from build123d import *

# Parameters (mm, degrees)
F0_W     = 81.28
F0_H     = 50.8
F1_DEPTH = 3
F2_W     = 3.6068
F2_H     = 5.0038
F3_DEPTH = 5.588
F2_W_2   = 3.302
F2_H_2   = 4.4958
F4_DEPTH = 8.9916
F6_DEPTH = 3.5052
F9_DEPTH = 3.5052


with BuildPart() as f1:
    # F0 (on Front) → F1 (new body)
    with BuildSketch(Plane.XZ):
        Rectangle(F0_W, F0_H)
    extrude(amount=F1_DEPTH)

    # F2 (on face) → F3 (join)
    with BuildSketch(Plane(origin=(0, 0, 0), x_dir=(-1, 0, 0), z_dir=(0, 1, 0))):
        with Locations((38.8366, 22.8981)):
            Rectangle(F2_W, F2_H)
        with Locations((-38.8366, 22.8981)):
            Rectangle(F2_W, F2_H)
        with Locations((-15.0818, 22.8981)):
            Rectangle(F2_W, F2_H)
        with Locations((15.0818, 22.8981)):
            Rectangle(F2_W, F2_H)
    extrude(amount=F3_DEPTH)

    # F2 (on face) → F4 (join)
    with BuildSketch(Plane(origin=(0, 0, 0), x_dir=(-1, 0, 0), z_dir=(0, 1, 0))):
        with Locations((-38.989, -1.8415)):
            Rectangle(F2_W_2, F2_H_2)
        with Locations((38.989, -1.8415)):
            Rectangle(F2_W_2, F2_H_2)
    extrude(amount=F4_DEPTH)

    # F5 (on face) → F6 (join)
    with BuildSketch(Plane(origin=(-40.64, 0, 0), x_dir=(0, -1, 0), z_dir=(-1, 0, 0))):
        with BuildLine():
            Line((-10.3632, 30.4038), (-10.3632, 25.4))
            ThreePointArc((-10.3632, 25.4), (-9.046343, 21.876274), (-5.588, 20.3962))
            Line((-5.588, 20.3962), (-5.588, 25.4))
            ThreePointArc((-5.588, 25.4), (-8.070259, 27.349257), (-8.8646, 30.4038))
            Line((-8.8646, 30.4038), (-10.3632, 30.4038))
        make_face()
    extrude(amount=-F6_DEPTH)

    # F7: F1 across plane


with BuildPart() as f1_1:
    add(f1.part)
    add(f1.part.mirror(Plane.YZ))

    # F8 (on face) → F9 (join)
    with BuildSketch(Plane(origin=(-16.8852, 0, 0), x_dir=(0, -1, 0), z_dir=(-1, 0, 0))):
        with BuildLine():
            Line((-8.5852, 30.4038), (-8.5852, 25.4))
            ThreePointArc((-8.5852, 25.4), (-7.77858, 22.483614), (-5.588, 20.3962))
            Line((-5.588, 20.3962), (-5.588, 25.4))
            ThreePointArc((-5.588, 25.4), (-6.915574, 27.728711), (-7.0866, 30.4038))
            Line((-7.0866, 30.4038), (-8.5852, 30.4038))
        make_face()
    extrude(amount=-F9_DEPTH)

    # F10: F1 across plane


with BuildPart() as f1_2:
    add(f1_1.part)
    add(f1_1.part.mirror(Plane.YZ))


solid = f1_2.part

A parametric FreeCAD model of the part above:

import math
import FreeCAD as App
import Part
import Sketcher
from FreeCAD import Vector
Q = App.Units.Quantity

doc = App.newDocument("Part")
body = doc.addObject("PartDesign::Body", "Body")

# Sketch on XZ plane
sketch1 = body.newObject("Sketcher::SketchObject", "Sketch")
sketch1.AttachmentSupport = (doc.getObject("XZ_Plane"), [""])
sketch1.MapMode = "FlatFace"
sketch1.addGeometry(Part.LineSegment(Vector(-40.64, 25.4, 0), Vector(-40.64, -25.4, 0)), False)
sketch1.addGeometry(Part.LineSegment(Vector(-40.64, -25.4, 0), Vector(40.64, -25.4, 0)), False)
sketch1.addGeometry(Part.LineSegment(Vector(40.64, -25.4, 0), Vector(40.64, 25.4, 0)), False)
sketch1.addGeometry(Part.LineSegment(Vector(40.64, 25.4, 0), Vector(-40.64, 25.4, 0)), False)
sketch1.addConstraint(Sketcher.Constraint("Coincident", 0, 2, 1, 1))
sketch1.addConstraint(Sketcher.Constraint("Coincident", 1, 2, 2, 1))
sketch1.addConstraint(Sketcher.Constraint("Coincident", 2, 2, 3, 1))
sketch1.addConstraint(Sketcher.Constraint("Coincident", 3, 2, 0, 1))
sketch1.addConstraint(Sketcher.Constraint("Vertical", 0))
sketch1.addConstraint(Sketcher.Constraint("Horizontal", 1))
sketch1.addConstraint(Sketcher.Constraint("Vertical", 2))
sketch1.addConstraint(Sketcher.Constraint("Horizontal", 3))
sketch1.addConstraint(Sketcher.Constraint("Symmetric", 0, 2, 2, 2, -1, 1))
sketch1.addConstraint(Sketcher.Constraint("DistanceY", 0, 2, 0, 1, Q("2 in")))
sketch1.addConstraint(Sketcher.Constraint("DistanceX", 1, 1, 1, 2, Q("3.2 in")))
pad1 = body.newObject("PartDesign::Pad", "Pad")
pad1.Profile = sketch1
pad1.Length = 3

# Sketch on XZ plane
sketch2 = body.newObject("Sketcher::SketchObject", "Sketch001")
sketch2.AttachmentSupport = (doc.getObject("XZ_Plane"), [""])
sketch2.MapMode = "FlatFace"
sketch2.addGeometry(Part.LineSegment(Vector(-37.0332, 25.4, 0), Vector(-37.0332, 20.3962, 0)), False)
sketch2.addGeometry(Part.LineSegment(Vector(-37.0332, 20.3962, 0), Vector(-40.64, 20.3962, 0)), False)
sketch2.addGeometry(Part.LineSegment(Vector(-40.64, 20.3962, 0), Vector(-40.64, 25.4, 0)), False)
sketch2.addGeometry(Part.LineSegment(Vector(-40.64, 25.4, 0), Vector(-37.0332, 25.4, 0)), False)
sketch2.addGeometry(Part.LineSegment(Vector(40.64, 25.4, 0), Vector(40.64, 20.3962, 0)), False)
sketch2.addGeometry(Part.LineSegment(Vector(40.64, 20.3962, 0), Vector(37.0332, 20.3962, 0)), False)
sketch2.addGeometry(Part.LineSegment(Vector(37.0332, 20.3962, 0), Vector(37.0332, 25.4, 0)), False)
sketch2.addGeometry(Part.LineSegment(Vector(37.0332, 25.4, 0), Vector(40.64, 25.4, 0)), False)
sketch2.addGeometry(Part.LineSegment(Vector(16.8852, 25.4, 0), Vector(16.8852, 20.3962, 0)), False)
sketch2.addGeometry(Part.LineSegment(Vector(16.8852, 20.3962, 0), Vector(13.2784, 20.3962, 0)), False)
sketch2.addGeometry(Part.LineSegment(Vector(13.2784, 20.3962, 0), Vector(13.2784, 25.4, 0)), False)
sketch2.addGeometry(Part.LineSegment(Vector(13.2784, 25.4, 0), Vector(16.8852, 25.4, 0)), False)
sketch2.addGeometry(Part.LineSegment(Vector(-13.2784, 25.4, 0), Vector(-13.2784, 20.3962, 0)), False)
sketch2.addGeometry(Part.LineSegment(Vector(-13.2784, 20.3962, 0), Vector(-16.8852, 20.3962, 0)), False)
sketch2.addGeometry(Part.LineSegment(Vector(-16.8852, 20.3962, 0), Vector(-16.8852, 25.4, 0)), False)
sketch2.addGeometry(Part.LineSegment(Vector(-16.8852, 25.4, 0), Vector(-13.2784, 25.4, 0)), False)
sketch2.addConstraint(Sketcher.Constraint("Coincident", 0, 2, 1, 1))
sketch2.addConstraint(Sketcher.Constraint("Coincident", 1, 2, 2, 1))
sketch2.addConstraint(Sketcher.Constraint("Coincident", 2, 2, 3, 1))
sketch2.addConstraint(Sketcher.Constraint("Coincident", 3, 2, 0, 1))
sketch2.addConstraint(Sketcher.Constraint("Coincident", 4, 2, 5, 1))
sketch2.addConstraint(Sketcher.Constraint("Coincident", 5, 2, 6, 1))
sketch2.addConstraint(Sketcher.Constraint("Coincident", 6, 2, 7, 1))
sketch2.addConstraint(Sketcher.Constraint("Coincident", 7, 2, 4, 1))
sketch2.addConstraint(Sketcher.Constraint("Coincident", 8, 2, 9, 1))
sketch2.addConstraint(Sketcher.Constraint("Coincident", 9, 2, 10, 1))
sketch2.addConstraint(Sketcher.Constraint("Coincident", 10, 2, 11, 1))
sketch2.addConstraint(Sketcher.Constraint("Coincident", 11, 2, 8, 1))
sketch2.addConstraint(Sketcher.Constraint("Coincident", 12, 2, 13, 1))
sketch2.addConstraint(Sketcher.Constraint("Coincident", 13, 2, 14, 1))
sketch2.addConstraint(Sketcher.Constraint("Coincident", 14, 2, 15, 1))
sketch2.addConstraint(Sketcher.Constraint("Coincident", 15, 2, 12, 1))
sketch2.addConstraint(Sketcher.Constraint("Vertical", 0))
sketch2.addConstraint(Sketcher.Constraint("Horizontal", 1))
sketch2.addConstraint(Sketcher.Constraint("Vertical", 2))
sketch2.addConstraint(Sketcher.Constraint("Horizontal", 3))
sketch2.addConstraint(Sketcher.Constraint("Vertical", 4))
sketch2.addConstraint(Sketcher.Constraint("Horizontal", 5))
sketch2.addConstraint(Sketcher.Constraint("Vertical", 6))
sketch2.addConstraint(Sketcher.Constraint("Horizontal", 7))
sketch2.addConstraint(Sketcher.Constraint("Vertical", 8))
sketch2.addConstraint(Sketcher.Constraint("Horizontal", 9))
sketch2.addConstraint(Sketcher.Constraint("Vertical", 10))
sketch2.addConstraint(Sketcher.Constraint("Horizontal", 11))
sketch2.addConstraint(Sketcher.Constraint("Vertical", 12))
sketch2.addConstraint(Sketcher.Constraint("Horizontal", 13))
sketch2.addConstraint(Sketcher.Constraint("Vertical", 14))
sketch2.addConstraint(Sketcher.Constraint("Horizontal", 15))
sketch2.addConstraint(Sketcher.Constraint("Symmetric", 1, 2, 4, 2, -2))
sketch2.addConstraint(Sketcher.Constraint("Symmetric", 3, 2, 6, 2, -2))
sketch2.addConstraint(Sketcher.Constraint("Symmetric", 9, 2, 12, 2, -2))
sketch2.addConstraint(Sketcher.Constraint("Symmetric", 11, 2, 14, 2, -2))
sketch2.addConstraint(Sketcher.Constraint("Horizontal", 5, 2, 8, 2))
sketch2.addConstraint(Sketcher.Constraint("Horizontal", 7, 2, 10, 2))
sketch2.addConstraint(Sketcher.Constraint("Equal", 7, 9))
sketch2.addConstraint(Sketcher.Constraint("DistanceY", -1, 1, 2, 2, Q("1 in")))
sketch2.addConstraint(Sketcher.Constraint("DistanceX", 1, 2, -1, 1, Q("1.6 in")))
sketch2.addConstraint(Sketcher.Constraint("DistanceX", 1, 2, 1, 1, Q("0.142 in")))
sketch2.addConstraint(Sketcher.Constraint("DistanceY", 0, 2, 0, 1, Q("0.197 in")))
sketch2.addConstraint(Sketcher.Constraint("DistanceX", -1, 1, 8, 2, Q("16.8852 mm")))
pad2 = body.newObject("PartDesign::Pad", "Pad001")
pad2.Profile = sketch2
pad2.Length = Q("0.22 in")
pad2.Reversed = True

# Sketch on XZ plane
sketch3 = body.newObject("Sketcher::SketchObject", "Sketch002")
sketch3.AttachmentSupport = (doc.getObject("XZ_Plane"), [""])
sketch3.MapMode = "FlatFace"
sketch3.addGeometry(Part.LineSegment(Vector(40.64, 0.4064, 0), Vector(40.64, -4.0894, 0)), False)
sketch3.addGeometry(Part.LineSegment(Vector(40.64, -4.0894, 0), Vector(37.338, -4.0894, 0)), False)
sketch3.addGeometry(Part.LineSegment(Vector(37.338, -4.0894, 0), Vector(37.338, 0.4064, 0)), False)
sketch3.addGeometry(Part.LineSegment(Vector(37.338, 0.4064, 0), Vector(40.64, 0.4064, 0)), False)
sketch3.addGeometry(Part.LineSegment(Vector(-37.338, 0.4064, 0), Vector(-37.338, -4.0894, 0)), False)
sketch3.addGeometry(Part.LineSegment(Vector(-37.338, -4.0894, 0), Vector(-40.64, -4.0894, 0)), False)
sketch3.addGeometry(Part.LineSegment(Vector(-40.64, -4.0894, 0), Vector(-40.64, 0.4064, 0)), False)
sketch3.addGeometry(Part.LineSegment(Vector(-40.64, 0.4064, 0), Vector(-37.338, 0.4064, 0)), False)
sketch3.addConstraint(Sketcher.Constraint("Coincident", 0, 2, 1, 1))
sketch3.addConstraint(Sketcher.Constraint("Coincident", 1, 2, 2, 1))
sketch3.addConstraint(Sketcher.Constraint("Coincident", 2, 2, 3, 1))
sketch3.addConstraint(Sketcher.Constraint("Coincident", 3, 2, 0, 1))
sketch3.addConstraint(Sketcher.Constraint("Coincident", 4, 2, 5, 1))
sketch3.addConstraint(Sketcher.Constraint("Coincident", 5, 2, 6, 1))
sketch3.addConstraint(Sketcher.Constraint("Coincident", 6, 2, 7, 1))
sketch3.addConstraint(Sketcher.Constraint("Coincident", 7, 2, 4, 1))
sketch3.addConstraint(Sketcher.Constraint("Vertical", 0))
sketch3.addConstraint(Sketcher.Constraint("Horizontal", 1))
sketch3.addConstraint(Sketcher.Constraint("Vertical", 2))
sketch3.addConstraint(Sketcher.Constraint("Horizontal", 3))
sketch3.addConstraint(Sketcher.Constraint("Vertical", 4))
sketch3.addConstraint(Sketcher.Constraint("Horizontal", 5))
sketch3.addConstraint(Sketcher.Constraint("Vertical", 6))
sketch3.addConstraint(Sketcher.Constraint("Horizontal", 7))
sketch3.addConstraint(Sketcher.Constraint("Symmetric", 1, 2, 4, 2, -2))
sketch3.addConstraint(Sketcher.Constraint("Symmetric", 3, 2, 6, 2, -2))
sketch3.addConstraint(Sketcher.Constraint("DistanceX", 1, 2, 1, 1, Q("0.13 in")))
sketch3.addConstraint(Sketcher.Constraint("DistanceX", -1, 1, 0, 2, Q("1.6 in")))
sketch3.addConstraint(Sketcher.Constraint("DistanceY", 0, 2, 0, 1, Q("0.177 in")))
sketch3.addConstraint(Sketcher.Constraint("DistanceY", 0, 2, -1, 1, Q("0.161 in")))
pad3 = body.newObject("PartDesign::Pad", "Pad002")
pad3.Profile = sketch3
pad3.Length = Q("0.354 in")
pad3.Reversed = True

# Sketch on YZ plane
sketch4 = body.newObject("Sketcher::SketchObject", "Sketch003")
sketch4.AttachmentSupport = (doc.getObject("YZ_Plane"), [""])
sketch4.MapMode = "FlatFace"
sketch4.AttachmentOffset = App.Placement(Vector(0, 0, -1.6 * 25.4), App.Rotation())
sketch4.addGeometry(Part.LineSegment(Vector(10.3632, 30.4038, 0), Vector(10.3632, 25.4, 0)), False)
sketch4.addGeometry(Part.ArcOfCircle(Part.Circle(Vector(5.588, 25.176622, 0), Vector(0, 0, 1), 4.780422), math.radians(-89.999998), math.radians(2.678274)), False)
sketch4.addGeometry(Part.LineSegment(Vector(5.588, 20.3962, 0), Vector(5.588, 25.4, 0)), False)
sketch4.addGeometry(Part.ArcOfCircle(Part.Circle(Vector(3.939862, 30.053933, 0), Vector(0, 0, 1), 4.93715), math.radians(-70.498974), math.radians(4.063625)), False)
sketch4.addGeometry(Part.LineSegment(Vector(8.8646, 30.4038, 0), Vector(10.3632, 30.4038, 0)), False)
sketch4.addConstraint(Sketcher.Constraint("Coincident", 0, 2, 1, 2))
sketch4.addConstraint(Sketcher.Constraint("Coincident", 1, 1, 2, 1))
sketch4.addConstraint(Sketcher.Constraint("Coincident", 2, 2, 3, 1))
sketch4.addConstraint(Sketcher.Constraint("Coincident", 3, 2, 4, 1))
sketch4.addConstraint(Sketcher.Constraint("Coincident", 4, 2, 0, 1))
sketch4.addConstraint(Sketcher.Constraint("Vertical", 0))
sketch4.addConstraint(Sketcher.Constraint("Vertical", 2))
sketch4.addConstraint(Sketcher.Constraint("Horizontal", 4))
sketch4.addConstraint(Sketcher.Constraint("Horizontal", 0, 2, 2, 2))
sketch4.addConstraint(Sketcher.Constraint("Equal", 0, 2))
sketch4.addConstraint(Sketcher.Constraint("DistanceY", -1, 1, 0, 2, Q("1 in")))
sketch4.addConstraint(Sketcher.Constraint("DistanceX", 4, 1, 4, 2, Q("0.059 in")))
sketch4.addConstraint(Sketcher.Constraint("DistanceY", 0, 2, 0, 1, Q("0.197 in")))
sketch4.addConstraint(Sketcher.Constraint("DistanceX", -1, 1, 1, 3, Q("0.22 in")))
sketch4.addConstraint(Sketcher.Constraint("DistanceX", -1, 1, 1, 1, Q("0.22 in")))
sketch4.addConstraint(Sketcher.Constraint("DistanceX", -1, 1, 0, 2, Q("0.408 in")))
sketch4.addConstraint(Sketcher.Constraint("Radius", 3, Q("4.93715 mm")))
pad4 = body.newObject("PartDesign::Pad", "Pad003")
pad4.Profile = sketch4
pad4.Length = Q("0.138 in")
body2 = doc.addObject("PartDesign::Body", "Body001")
doc.recompute()

body2.BaseFeature = body
doc.recompute()

mirroring = doc.addObject("Part::Mirroring", "Mirroring")
mirroring.Source = body
mirroring.Base = Vector(0, 0, 0)
mirroring.Normal = Vector(1, 0, 0)
body3 = doc.addObject("PartDesign::Body", "Body002")
body3.BaseFeature = mirroring
boolean = body2.newObject("PartDesign::Boolean", "Boolean")
boolean.Type = "Fuse"
boolean.addObjects([body3])
doc.recompute()

# Sketch on YZ plane
sketch5 = body2.newObject("Sketcher::SketchObject", "Sketch004")
sketch5.AttachmentSupport = (doc.getObject("YZ_Plane001"), [""])
sketch5.MapMode = "FlatFace"
sketch5.AttachmentOffset = App.Placement(Vector(0, 0, -16.8852), App.Rotation())
sketch5.addGeometry(Part.LineSegment(Vector(8.5852, 30.4038, 0), Vector(8.5852, 25.4, 0)), False)
sketch5.addGeometry(Part.ArcOfCircle(Part.Circle(Vector(2.909698, 25.400001, 0), Vector(0, 0, 1), 5.675502), math.radians(-61.841927), math.radians(-0.000006)), False)
sketch5.addGeometry(Part.LineSegment(Vector(5.588, 20.3962, 0), Vector(5.588, 25.4, 0)), False)
sketch5.addGeometry(Part.ArcOfCircle(Part.Circle(Vector(1.214208, 29.436227, 0), Vector(0, 0, 1), 5.95157), math.radians(-42.701472), math.radians(9.356356)), False)
sketch5.addGeometry(Part.LineSegment(Vector(7.0866, 30.4038, 0), Vector(8.5852, 30.4038, 0)), False)
sketch5.addConstraint(Sketcher.Constraint("Tangent", 0, 2, 1, 2))
sketch5.addConstraint(Sketcher.Constraint("Coincident", 1, 1, 2, 1))
sketch5.addConstraint(Sketcher.Constraint("Coincident", 2, 2, 3, 1))
sketch5.addConstraint(Sketcher.Constraint("Coincident", 3, 2, 4, 1))
sketch5.addConstraint(Sketcher.Constraint("Coincident", 4, 2, 0, 1))
sketch5.addConstraint(Sketcher.Constraint("Vertical", 0))
sketch5.addConstraint(Sketcher.Constraint("Vertical", 2))
sketch5.addConstraint(Sketcher.Constraint("Horizontal", 4))
sketch5.addConstraint(Sketcher.Constraint("Horizontal", 0, 2, 2, 2))
sketch5.addConstraint(Sketcher.Constraint("Equal", 0, 2))
sketch5.addConstraint(Sketcher.Constraint("DistanceY", -1, 1, 1, 3, Q("1 in")))
sketch5.addConstraint(Sketcher.Constraint("DistanceX", 4, 1, 4, 2, Q("0.059 in")))
sketch5.addConstraint(Sketcher.Constraint("DistanceY", 0, 2, 0, 1, Q("0.197 in")))
sketch5.addConstraint(Sketcher.Constraint("DistanceX", -1, 1, 1, 1, Q("0.22 in")))
sketch5.addConstraint(Sketcher.Constraint("Radius", 1, Q("5.675502 mm")))
sketch5.addConstraint(Sketcher.Constraint("Radius", 3, Q("5.95157 mm")))
pad5 = body2.newObject("PartDesign::Pad", "Pad004")
pad5.Profile = sketch5
pad5.Length = Q("0.138 in")
body4 = doc.addObject("PartDesign::Body", "Body003")
doc.recompute()

body4.BaseFeature = body2
doc.recompute()

mirroring2 = doc.addObject("Part::Mirroring", "Mirroring001")
mirroring2.Source = body2
mirroring2.Base = Vector(0, 0, 0)
mirroring2.Normal = Vector(1, 0, 0)
body5 = doc.addObject("PartDesign::Body", "Body004")
body5.BaseFeature = mirroring2
boolean2 = body4.newObject("PartDesign::Boolean", "Boolean001")
boolean2.Type = "Fuse"
boolean2.addObjects([body5])
doc.recompute()
mirroring.Visibility = False
mirroring2.Visibility = False

doc.recompute()
